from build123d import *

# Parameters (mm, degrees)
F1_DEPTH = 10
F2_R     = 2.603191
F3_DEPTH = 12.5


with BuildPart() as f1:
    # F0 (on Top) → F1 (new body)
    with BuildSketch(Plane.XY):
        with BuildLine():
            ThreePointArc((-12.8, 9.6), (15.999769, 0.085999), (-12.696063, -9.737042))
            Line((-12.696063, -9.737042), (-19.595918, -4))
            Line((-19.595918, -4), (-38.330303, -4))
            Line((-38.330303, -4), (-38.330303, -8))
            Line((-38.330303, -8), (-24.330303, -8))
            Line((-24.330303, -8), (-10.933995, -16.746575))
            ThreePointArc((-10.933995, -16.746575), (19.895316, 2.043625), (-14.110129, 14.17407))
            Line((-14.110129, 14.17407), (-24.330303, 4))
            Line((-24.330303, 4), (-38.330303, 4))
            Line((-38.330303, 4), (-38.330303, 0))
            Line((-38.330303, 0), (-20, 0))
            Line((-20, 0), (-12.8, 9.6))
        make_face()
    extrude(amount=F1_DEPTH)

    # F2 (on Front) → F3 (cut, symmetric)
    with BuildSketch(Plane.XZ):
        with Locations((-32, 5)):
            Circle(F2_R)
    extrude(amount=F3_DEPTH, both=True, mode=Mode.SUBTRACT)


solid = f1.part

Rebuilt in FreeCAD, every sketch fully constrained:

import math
import FreeCAD as App
import Part
import Sketcher

V = App.Vector

doc = App.newDocument("Part")
params = doc.addObject("Spreadsheet::Sheet", "Params")
for row, (alias, value) in enumerate([
    ("sketch1_radius", "16 mm"),
    ("sketch1_radius2", "20 mm"),
    ("sketch1_width", "14 mm"),
    ("sketch1_height", "4 mm"),
    ("sketch1_length", "12 mm"),
    ("pad1_length", "10 mm"),
    ("pocket1_length", "25 mm"),
], start=1):
    params.set(f"A{row}", alias)
    params.set(f"B{row}", "=" + value)
    params.setAlias(f"B{row}", alias)

body = doc.addObject("PartDesign::Body", "Body")

sketch1 = body.newObject("Sketcher::SketchObject", "Sketch")
sketch1.AttachmentSupport = (doc.getObject("XY_Plane"), [""])
sketch1.MapMode = "FlatFace"
sketch1.addGeometry([
    Part.ArcOfCircle(Part.Circle(V(0, 0, 0), V(0, 0, 1), 16), math.radians(-143), math.radians(143)),
    Part.LineSegment(V(-12.7, -9.7, 0), V(-19.6, -4, 0)),
    Part.LineSegment(V(-19.6, -4, 0), V(-38.3, -4, 0)),
    Part.LineSegment(V(-38.3, -4, 0), V(-38.3, -8, 0)),
    Part.LineSegment(V(-38.3, -8, 0), V(-24.3, -8, 0)),
    Part.LineSegment(V(-24.3, -8, 0), V(-10.9, -16.7, 0)),
    Part.ArcOfCircle(Part.Circle(V(0, 0, 0), V(0, 0, 1), 20), math.radians(-123), math.radians(135)),
    Part.LineSegment(V(-14.1, 14.2, 0), V(-24.3, 4, 0)),
    Part.LineSegment(V(-24.3, 4, 0), V(-38.3, 4, 0)),
    Part.LineSegment(V(-38.3, 4, 0), V(-38.3, 0, 0)),
    Part.LineSegment(V(-38.3, 0, 0), V(-20, 0, 0)),
    Part.LineSegment(V(-20, 0, 0), V(-12.8, 9.6, 0)),
], False)
sketch1.addConstraint([
    Sketcher.Constraint("Coincident", 0, 1, 1, 1),
    Sketcher.Constraint("Coincident", 1, 2, 2, 1),
    Sketcher.Constraint("Coincident", 2, 2, 3, 1),
    Sketcher.Constraint("Coincident", 3, 2, 4, 1),
    Sketcher.Constraint("Coincident", 4, 2, 5, 1),
    Sketcher.Constraint("Tangent", 5, 2, 6, 1),
    Sketcher.Constraint("Tangent", 6, 2, 7, 1),
    Sketcher.Constraint("Coincident", 7, 2, 8, 1),
    Sketcher.Constraint("Coincident", 8, 2, 9, 1),
    Sketcher.Constraint("Coincident", 9, 2, 10, 1),
    Sketcher.Constraint("Coincident", 10, 2, 11, 1),
    Sketcher.Constraint("Tangent", 11, 2, 0, 2),
    Sketcher.Constraint("Horizontal", 2),
    Sketcher.Constraint("Vertical", 3),
    Sketcher.Constraint("Horizontal", 4),
    Sketcher.Constraint("Horizontal", 8),
    Sketcher.Constraint("Vertical", 9),
    Sketcher.Constraint("Horizontal", 10),
    Sketcher.Constraint("Coincident", 0, 3, -1, 1),
    Sketcher.Constraint("Coincident", 6, 3, -1, 1),
    Sketcher.Constraint("Symmetric", 2, 2, 8, 2, -1),
    Sketcher.Constraint("PointOnObject", 9, 2, -1),
    Sketcher.Constraint("Vertical", 4, 2, 7, 2),
    Sketcher.Constraint("Equal", 3, 9),
    Sketcher.Constraint("Radius", 0, 16.0),
    Sketcher.Constraint("Radius", 6, 20.0),
    Sketcher.Constraint("DistanceX", 4, 1, 4, 2, 14.0),
    Sketcher.Constraint("DistanceY", 3, 2, 3, 1, 4.0),
    Sketcher.Constraint("Distance", 11, 12.0),
    Sketcher.Constraint("DistanceX", 2, 2, 2, 1, 18.734385),
    Sketcher.Constraint("DistanceX", 10, 1, 10, 2, 18.330303),
    Sketcher.Constraint("DistanceY", 0, 1, -1, 1, 9.737042),
])
sketch1.setExpression("Constraints[24]", "Params.sketch1_radius")
sketch1.setExpression("Constraints[25]", "Params.sketch1_radius2")
sketch1.setExpression("Constraints[26]", "Params.sketch1_width")
sketch1.setExpression("Constraints[27]", "Params.sketch1_height")
sketch1.setExpression("Constraints[28]", "Params.sketch1_length")
pad1 = body.newObject("PartDesign::Pad", "Pad")
pad1.Profile = sketch1
pad1.setExpression("Length", "Params.pad1_length")

sketch2 = body.newObject("Sketcher::SketchObject", "Sketch001")
sketch2.AttachmentSupport = (doc.getObject("XZ_Plane"), [""])
sketch2.MapMode = "FlatFace"
sketch2.addGeometry(Part.Circle(V(-32, 5, 0), V(0, 0, 1), 2.6), False)
sketch2.addConstraint([
    Sketcher.Constraint("DistanceX", 0, 3, -1, 1, 32.0),
    Sketcher.Constraint("DistanceY", -1, 1, 0, 3, 5.0),
    Sketcher.Constraint("Diameter", 0, 5.206382),
])
pocket1 = body.newObject("PartDesign::Pocket", "Pocket")
pocket1.Profile = sketch2
pocket1.setExpression("Length", "Params.pocket1_length")
pocket1.Midplane = True

doc.recompute()
